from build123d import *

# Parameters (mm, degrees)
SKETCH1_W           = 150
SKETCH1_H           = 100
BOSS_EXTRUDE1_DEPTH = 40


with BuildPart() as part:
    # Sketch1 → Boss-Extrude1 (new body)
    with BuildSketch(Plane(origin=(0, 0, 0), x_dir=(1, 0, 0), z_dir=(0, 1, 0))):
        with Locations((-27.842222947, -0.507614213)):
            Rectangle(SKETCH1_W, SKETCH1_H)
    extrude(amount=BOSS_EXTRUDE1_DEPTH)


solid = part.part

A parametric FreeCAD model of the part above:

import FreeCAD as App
import Part
import Sketcher

V = App.Vector
Q = App.Units.Quantity


def add_polygon(sketch, points):
    """Adds a closed chain of lines whose ends are joined by coincident constraints."""
    first, n = sketch.GeometryCount, len(points)
    for a, b in zip(points, points[1:] + points[:1]):
        sketch.addGeometry(Part.LineSegment(App.Vector(*a, 0), App.Vector(*b, 0)), False)
    for i in range(n):
        sketch.addConstraint(Sketcher.Constraint("Coincident", first + i, 2, first + (i + 1) % n, 1))

doc = App.newDocument("Part")
body = doc.addObject("PartDesign::Body", "Body")

sketch1 = body.newObject("Sketcher::SketchObject", "Sketch")
sketch1.AttachmentSupport = (doc.getObject("XZ_Plane"), [""])
sketch1.MapMode = "FlatFace"
add_polygon(sketch1, [(-103, -49), (-103, 51), (47, 51), (47, -49)])
sketch1.addConstraint([
    Sketcher.Constraint("Vertical", 0),
    Sketcher.Constraint("Horizontal", 1),
    Sketcher.Constraint("Vertical", 2),
    Sketcher.Constraint("Horizontal", 3),
    Sketcher.Constraint("DistanceX", 1, 1, 1, 2, Q("150 mm")),
    Sketcher.Constraint("DistanceY", 0, 1, 0, 2, Q("100 mm")),
    Sketcher.Constraint("DistanceX", 0, 2, -1, 1, Q("102.842223 mm")),
    Sketcher.Constraint("DistanceY", -1, 1, 0, 2, Q("50.507614 mm")),
])
pad1 = body.newObject("PartDesign::Pad", "Pad")
pad1.Profile = sketch1
pad1.Length = 40
pad1.Reversed = True

doc.recompute()
